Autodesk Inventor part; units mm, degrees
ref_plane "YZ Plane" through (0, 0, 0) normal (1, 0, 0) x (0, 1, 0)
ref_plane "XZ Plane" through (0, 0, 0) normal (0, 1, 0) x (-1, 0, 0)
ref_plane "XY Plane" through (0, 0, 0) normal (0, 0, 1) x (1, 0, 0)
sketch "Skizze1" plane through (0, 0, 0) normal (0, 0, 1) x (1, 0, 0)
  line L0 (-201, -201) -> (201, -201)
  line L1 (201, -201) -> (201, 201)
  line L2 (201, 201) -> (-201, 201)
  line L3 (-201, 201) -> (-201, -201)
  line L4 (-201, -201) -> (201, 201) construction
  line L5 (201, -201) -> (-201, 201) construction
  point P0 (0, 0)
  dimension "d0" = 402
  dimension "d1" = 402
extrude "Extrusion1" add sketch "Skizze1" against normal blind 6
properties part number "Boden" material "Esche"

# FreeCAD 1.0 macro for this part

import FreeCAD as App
import Part
import Sketcher

V = App.Vector

doc = App.newDocument("Part")
params = doc.addObject("Spreadsheet::Sheet", "Params")
for row, (alias, value) in enumerate([
    ("sketch1_width", "402 mm"),
    ("pad1_length", "6 mm"),
], start=1):
    params.set(f"A{row}", alias)
    params.set(f"B{row}", "=" + value)
    params.setAlias(f"B{row}", alias)

body = doc.addObject("PartDesign::Body", "Body")

sketch1 = body.newObject("Sketcher::SketchObject", "Sketch")
sketch1.AttachmentSupport = (doc.getObject("XY_Plane"), [""])
sketch1.MapMode = "FlatFace"
sketch1.addGeometry(Part.LineSegment(V(-201, 201, 0), V(-201, -201, 0)), False)
sketch1.addGeometry(Part.LineSegment(V(-201, -201, 0), V(201, -201, 0)), False)
sketch1.addGeometry(Part.LineSegment(V(201, -201, 0), V(201, 201, 0)), False)
sketch1.addGeometry(Part.LineSegment(V(201, 201, 0), V(-201, 201, 0)), False)
sketch1.addConstraint(Sketcher.Constraint("Coincident", 0, 2, 1, 1))
sketch1.addConstraint(Sketcher.Constraint("Coincident", 1, 2, 2, 1))
sketch1.addConstraint(Sketcher.Constraint("Coincident", 2, 2, 3, 1))
sketch1.addConstraint(Sketcher.Constraint("Coincident", 3, 2, 0, 1))
sketch1.addConstraint(Sketcher.Constraint("Vertical", 0))
sketch1.addConstraint(Sketcher.Constraint("Horizontal", 1))
sketch1.addConstraint(Sketcher.Constraint("Vertical", 2))
sketch1.addConstraint(Sketcher.Constraint("Horizontal", 3))
sketch1.addConstraint(Sketcher.Constraint("Symmetric", 0, 2, 2, 2, -1, 1))
sketch1.addConstraint(Sketcher.Constraint("Equal", 3, 0))
sketch1.addConstraint(Sketcher.Constraint("DistanceX", 1, 1, 1, 2, 402.0))
sketch1.setExpression("Constraints[10]", "Params.sketch1_width")
pad1 = body.newObject("PartDesign::Pad", "Pad")
pad1.Profile = sketch1
pad1.setExpression("Length", "Params.pad1_length")
pad1.Reversed = True

doc.recompute()
